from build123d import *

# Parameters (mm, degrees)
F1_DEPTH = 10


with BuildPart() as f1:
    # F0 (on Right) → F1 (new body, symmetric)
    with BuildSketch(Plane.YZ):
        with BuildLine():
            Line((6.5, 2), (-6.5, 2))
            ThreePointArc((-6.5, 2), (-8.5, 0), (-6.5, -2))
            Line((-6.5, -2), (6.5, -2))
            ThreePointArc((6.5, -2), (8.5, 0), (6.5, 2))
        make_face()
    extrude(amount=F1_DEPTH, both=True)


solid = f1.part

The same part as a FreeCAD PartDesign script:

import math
import FreeCAD as App
import Part
import Sketcher
from FreeCAD import Vector

doc = App.newDocument("Part")
body = doc.addObject("PartDesign::Body", "Body")

# Sketch on YZ plane
sketch1 = doc.addObject("Sketcher::SketchObject", "Sketch")
body.addObject(sketch1)
sketch1.AttachmentSupport = (doc.YZ_Plane, [""])
sketch1.MapMode = "FlatFace"
sketch1.addGeometry(Part.LineSegment(Vector(6.5, 2, 0), Vector(-6.5, 2, 0)), False)
sketch1.addGeometry(Part.ArcOfCircle(Part.Circle(Vector(-6.5, 0, 0), Vector(0, 0, 1), 2), math.radians(90), math.radians(270)), False)
sketch1.addGeometry(Part.LineSegment(Vector(-6.5, -2, 0), Vector(6.5, -2, 0)), False)
sketch1.addGeometry(Part.ArcOfCircle(Part.Circle(Vector(6.5, 0, 0), Vector(0, 0, 1), 2), math.radians(-90), math.radians(90)), False)
sketch1.addConstraint(Sketcher.Constraint("Tangent", 0, 2, 1, 1))
sketch1.addConstraint(Sketcher.Constraint("Tangent", 1, 2, 2, 1))
sketch1.addConstraint(Sketcher.Constraint("Tangent", 2, 2, 3, 1))
sketch1.addConstraint(Sketcher.Constraint("Tangent", 3, 2, 0, 1))
sketch1.addConstraint(Sketcher.Constraint("Horizontal", 0))
sketch1.addConstraint(Sketcher.Constraint("Horizontal", 2))
sketch1.addConstraint(Sketcher.Constraint("Symmetric", 1, 3, 3, 3, -1, 1))
sketch1.addConstraint(Sketcher.Constraint("Radius", 1, 2.0))
sketch1.addConstraint(Sketcher.Constraint("DistanceX", 0, 2, 0, 1, 13.0))
pad1 = doc.addObject("PartDesign::Pad", "Pad")
body.addObject(pad1)
pad1.Profile = sketch1
pad1.Length = 20
pad1.Midplane = True

doc.recompute()
